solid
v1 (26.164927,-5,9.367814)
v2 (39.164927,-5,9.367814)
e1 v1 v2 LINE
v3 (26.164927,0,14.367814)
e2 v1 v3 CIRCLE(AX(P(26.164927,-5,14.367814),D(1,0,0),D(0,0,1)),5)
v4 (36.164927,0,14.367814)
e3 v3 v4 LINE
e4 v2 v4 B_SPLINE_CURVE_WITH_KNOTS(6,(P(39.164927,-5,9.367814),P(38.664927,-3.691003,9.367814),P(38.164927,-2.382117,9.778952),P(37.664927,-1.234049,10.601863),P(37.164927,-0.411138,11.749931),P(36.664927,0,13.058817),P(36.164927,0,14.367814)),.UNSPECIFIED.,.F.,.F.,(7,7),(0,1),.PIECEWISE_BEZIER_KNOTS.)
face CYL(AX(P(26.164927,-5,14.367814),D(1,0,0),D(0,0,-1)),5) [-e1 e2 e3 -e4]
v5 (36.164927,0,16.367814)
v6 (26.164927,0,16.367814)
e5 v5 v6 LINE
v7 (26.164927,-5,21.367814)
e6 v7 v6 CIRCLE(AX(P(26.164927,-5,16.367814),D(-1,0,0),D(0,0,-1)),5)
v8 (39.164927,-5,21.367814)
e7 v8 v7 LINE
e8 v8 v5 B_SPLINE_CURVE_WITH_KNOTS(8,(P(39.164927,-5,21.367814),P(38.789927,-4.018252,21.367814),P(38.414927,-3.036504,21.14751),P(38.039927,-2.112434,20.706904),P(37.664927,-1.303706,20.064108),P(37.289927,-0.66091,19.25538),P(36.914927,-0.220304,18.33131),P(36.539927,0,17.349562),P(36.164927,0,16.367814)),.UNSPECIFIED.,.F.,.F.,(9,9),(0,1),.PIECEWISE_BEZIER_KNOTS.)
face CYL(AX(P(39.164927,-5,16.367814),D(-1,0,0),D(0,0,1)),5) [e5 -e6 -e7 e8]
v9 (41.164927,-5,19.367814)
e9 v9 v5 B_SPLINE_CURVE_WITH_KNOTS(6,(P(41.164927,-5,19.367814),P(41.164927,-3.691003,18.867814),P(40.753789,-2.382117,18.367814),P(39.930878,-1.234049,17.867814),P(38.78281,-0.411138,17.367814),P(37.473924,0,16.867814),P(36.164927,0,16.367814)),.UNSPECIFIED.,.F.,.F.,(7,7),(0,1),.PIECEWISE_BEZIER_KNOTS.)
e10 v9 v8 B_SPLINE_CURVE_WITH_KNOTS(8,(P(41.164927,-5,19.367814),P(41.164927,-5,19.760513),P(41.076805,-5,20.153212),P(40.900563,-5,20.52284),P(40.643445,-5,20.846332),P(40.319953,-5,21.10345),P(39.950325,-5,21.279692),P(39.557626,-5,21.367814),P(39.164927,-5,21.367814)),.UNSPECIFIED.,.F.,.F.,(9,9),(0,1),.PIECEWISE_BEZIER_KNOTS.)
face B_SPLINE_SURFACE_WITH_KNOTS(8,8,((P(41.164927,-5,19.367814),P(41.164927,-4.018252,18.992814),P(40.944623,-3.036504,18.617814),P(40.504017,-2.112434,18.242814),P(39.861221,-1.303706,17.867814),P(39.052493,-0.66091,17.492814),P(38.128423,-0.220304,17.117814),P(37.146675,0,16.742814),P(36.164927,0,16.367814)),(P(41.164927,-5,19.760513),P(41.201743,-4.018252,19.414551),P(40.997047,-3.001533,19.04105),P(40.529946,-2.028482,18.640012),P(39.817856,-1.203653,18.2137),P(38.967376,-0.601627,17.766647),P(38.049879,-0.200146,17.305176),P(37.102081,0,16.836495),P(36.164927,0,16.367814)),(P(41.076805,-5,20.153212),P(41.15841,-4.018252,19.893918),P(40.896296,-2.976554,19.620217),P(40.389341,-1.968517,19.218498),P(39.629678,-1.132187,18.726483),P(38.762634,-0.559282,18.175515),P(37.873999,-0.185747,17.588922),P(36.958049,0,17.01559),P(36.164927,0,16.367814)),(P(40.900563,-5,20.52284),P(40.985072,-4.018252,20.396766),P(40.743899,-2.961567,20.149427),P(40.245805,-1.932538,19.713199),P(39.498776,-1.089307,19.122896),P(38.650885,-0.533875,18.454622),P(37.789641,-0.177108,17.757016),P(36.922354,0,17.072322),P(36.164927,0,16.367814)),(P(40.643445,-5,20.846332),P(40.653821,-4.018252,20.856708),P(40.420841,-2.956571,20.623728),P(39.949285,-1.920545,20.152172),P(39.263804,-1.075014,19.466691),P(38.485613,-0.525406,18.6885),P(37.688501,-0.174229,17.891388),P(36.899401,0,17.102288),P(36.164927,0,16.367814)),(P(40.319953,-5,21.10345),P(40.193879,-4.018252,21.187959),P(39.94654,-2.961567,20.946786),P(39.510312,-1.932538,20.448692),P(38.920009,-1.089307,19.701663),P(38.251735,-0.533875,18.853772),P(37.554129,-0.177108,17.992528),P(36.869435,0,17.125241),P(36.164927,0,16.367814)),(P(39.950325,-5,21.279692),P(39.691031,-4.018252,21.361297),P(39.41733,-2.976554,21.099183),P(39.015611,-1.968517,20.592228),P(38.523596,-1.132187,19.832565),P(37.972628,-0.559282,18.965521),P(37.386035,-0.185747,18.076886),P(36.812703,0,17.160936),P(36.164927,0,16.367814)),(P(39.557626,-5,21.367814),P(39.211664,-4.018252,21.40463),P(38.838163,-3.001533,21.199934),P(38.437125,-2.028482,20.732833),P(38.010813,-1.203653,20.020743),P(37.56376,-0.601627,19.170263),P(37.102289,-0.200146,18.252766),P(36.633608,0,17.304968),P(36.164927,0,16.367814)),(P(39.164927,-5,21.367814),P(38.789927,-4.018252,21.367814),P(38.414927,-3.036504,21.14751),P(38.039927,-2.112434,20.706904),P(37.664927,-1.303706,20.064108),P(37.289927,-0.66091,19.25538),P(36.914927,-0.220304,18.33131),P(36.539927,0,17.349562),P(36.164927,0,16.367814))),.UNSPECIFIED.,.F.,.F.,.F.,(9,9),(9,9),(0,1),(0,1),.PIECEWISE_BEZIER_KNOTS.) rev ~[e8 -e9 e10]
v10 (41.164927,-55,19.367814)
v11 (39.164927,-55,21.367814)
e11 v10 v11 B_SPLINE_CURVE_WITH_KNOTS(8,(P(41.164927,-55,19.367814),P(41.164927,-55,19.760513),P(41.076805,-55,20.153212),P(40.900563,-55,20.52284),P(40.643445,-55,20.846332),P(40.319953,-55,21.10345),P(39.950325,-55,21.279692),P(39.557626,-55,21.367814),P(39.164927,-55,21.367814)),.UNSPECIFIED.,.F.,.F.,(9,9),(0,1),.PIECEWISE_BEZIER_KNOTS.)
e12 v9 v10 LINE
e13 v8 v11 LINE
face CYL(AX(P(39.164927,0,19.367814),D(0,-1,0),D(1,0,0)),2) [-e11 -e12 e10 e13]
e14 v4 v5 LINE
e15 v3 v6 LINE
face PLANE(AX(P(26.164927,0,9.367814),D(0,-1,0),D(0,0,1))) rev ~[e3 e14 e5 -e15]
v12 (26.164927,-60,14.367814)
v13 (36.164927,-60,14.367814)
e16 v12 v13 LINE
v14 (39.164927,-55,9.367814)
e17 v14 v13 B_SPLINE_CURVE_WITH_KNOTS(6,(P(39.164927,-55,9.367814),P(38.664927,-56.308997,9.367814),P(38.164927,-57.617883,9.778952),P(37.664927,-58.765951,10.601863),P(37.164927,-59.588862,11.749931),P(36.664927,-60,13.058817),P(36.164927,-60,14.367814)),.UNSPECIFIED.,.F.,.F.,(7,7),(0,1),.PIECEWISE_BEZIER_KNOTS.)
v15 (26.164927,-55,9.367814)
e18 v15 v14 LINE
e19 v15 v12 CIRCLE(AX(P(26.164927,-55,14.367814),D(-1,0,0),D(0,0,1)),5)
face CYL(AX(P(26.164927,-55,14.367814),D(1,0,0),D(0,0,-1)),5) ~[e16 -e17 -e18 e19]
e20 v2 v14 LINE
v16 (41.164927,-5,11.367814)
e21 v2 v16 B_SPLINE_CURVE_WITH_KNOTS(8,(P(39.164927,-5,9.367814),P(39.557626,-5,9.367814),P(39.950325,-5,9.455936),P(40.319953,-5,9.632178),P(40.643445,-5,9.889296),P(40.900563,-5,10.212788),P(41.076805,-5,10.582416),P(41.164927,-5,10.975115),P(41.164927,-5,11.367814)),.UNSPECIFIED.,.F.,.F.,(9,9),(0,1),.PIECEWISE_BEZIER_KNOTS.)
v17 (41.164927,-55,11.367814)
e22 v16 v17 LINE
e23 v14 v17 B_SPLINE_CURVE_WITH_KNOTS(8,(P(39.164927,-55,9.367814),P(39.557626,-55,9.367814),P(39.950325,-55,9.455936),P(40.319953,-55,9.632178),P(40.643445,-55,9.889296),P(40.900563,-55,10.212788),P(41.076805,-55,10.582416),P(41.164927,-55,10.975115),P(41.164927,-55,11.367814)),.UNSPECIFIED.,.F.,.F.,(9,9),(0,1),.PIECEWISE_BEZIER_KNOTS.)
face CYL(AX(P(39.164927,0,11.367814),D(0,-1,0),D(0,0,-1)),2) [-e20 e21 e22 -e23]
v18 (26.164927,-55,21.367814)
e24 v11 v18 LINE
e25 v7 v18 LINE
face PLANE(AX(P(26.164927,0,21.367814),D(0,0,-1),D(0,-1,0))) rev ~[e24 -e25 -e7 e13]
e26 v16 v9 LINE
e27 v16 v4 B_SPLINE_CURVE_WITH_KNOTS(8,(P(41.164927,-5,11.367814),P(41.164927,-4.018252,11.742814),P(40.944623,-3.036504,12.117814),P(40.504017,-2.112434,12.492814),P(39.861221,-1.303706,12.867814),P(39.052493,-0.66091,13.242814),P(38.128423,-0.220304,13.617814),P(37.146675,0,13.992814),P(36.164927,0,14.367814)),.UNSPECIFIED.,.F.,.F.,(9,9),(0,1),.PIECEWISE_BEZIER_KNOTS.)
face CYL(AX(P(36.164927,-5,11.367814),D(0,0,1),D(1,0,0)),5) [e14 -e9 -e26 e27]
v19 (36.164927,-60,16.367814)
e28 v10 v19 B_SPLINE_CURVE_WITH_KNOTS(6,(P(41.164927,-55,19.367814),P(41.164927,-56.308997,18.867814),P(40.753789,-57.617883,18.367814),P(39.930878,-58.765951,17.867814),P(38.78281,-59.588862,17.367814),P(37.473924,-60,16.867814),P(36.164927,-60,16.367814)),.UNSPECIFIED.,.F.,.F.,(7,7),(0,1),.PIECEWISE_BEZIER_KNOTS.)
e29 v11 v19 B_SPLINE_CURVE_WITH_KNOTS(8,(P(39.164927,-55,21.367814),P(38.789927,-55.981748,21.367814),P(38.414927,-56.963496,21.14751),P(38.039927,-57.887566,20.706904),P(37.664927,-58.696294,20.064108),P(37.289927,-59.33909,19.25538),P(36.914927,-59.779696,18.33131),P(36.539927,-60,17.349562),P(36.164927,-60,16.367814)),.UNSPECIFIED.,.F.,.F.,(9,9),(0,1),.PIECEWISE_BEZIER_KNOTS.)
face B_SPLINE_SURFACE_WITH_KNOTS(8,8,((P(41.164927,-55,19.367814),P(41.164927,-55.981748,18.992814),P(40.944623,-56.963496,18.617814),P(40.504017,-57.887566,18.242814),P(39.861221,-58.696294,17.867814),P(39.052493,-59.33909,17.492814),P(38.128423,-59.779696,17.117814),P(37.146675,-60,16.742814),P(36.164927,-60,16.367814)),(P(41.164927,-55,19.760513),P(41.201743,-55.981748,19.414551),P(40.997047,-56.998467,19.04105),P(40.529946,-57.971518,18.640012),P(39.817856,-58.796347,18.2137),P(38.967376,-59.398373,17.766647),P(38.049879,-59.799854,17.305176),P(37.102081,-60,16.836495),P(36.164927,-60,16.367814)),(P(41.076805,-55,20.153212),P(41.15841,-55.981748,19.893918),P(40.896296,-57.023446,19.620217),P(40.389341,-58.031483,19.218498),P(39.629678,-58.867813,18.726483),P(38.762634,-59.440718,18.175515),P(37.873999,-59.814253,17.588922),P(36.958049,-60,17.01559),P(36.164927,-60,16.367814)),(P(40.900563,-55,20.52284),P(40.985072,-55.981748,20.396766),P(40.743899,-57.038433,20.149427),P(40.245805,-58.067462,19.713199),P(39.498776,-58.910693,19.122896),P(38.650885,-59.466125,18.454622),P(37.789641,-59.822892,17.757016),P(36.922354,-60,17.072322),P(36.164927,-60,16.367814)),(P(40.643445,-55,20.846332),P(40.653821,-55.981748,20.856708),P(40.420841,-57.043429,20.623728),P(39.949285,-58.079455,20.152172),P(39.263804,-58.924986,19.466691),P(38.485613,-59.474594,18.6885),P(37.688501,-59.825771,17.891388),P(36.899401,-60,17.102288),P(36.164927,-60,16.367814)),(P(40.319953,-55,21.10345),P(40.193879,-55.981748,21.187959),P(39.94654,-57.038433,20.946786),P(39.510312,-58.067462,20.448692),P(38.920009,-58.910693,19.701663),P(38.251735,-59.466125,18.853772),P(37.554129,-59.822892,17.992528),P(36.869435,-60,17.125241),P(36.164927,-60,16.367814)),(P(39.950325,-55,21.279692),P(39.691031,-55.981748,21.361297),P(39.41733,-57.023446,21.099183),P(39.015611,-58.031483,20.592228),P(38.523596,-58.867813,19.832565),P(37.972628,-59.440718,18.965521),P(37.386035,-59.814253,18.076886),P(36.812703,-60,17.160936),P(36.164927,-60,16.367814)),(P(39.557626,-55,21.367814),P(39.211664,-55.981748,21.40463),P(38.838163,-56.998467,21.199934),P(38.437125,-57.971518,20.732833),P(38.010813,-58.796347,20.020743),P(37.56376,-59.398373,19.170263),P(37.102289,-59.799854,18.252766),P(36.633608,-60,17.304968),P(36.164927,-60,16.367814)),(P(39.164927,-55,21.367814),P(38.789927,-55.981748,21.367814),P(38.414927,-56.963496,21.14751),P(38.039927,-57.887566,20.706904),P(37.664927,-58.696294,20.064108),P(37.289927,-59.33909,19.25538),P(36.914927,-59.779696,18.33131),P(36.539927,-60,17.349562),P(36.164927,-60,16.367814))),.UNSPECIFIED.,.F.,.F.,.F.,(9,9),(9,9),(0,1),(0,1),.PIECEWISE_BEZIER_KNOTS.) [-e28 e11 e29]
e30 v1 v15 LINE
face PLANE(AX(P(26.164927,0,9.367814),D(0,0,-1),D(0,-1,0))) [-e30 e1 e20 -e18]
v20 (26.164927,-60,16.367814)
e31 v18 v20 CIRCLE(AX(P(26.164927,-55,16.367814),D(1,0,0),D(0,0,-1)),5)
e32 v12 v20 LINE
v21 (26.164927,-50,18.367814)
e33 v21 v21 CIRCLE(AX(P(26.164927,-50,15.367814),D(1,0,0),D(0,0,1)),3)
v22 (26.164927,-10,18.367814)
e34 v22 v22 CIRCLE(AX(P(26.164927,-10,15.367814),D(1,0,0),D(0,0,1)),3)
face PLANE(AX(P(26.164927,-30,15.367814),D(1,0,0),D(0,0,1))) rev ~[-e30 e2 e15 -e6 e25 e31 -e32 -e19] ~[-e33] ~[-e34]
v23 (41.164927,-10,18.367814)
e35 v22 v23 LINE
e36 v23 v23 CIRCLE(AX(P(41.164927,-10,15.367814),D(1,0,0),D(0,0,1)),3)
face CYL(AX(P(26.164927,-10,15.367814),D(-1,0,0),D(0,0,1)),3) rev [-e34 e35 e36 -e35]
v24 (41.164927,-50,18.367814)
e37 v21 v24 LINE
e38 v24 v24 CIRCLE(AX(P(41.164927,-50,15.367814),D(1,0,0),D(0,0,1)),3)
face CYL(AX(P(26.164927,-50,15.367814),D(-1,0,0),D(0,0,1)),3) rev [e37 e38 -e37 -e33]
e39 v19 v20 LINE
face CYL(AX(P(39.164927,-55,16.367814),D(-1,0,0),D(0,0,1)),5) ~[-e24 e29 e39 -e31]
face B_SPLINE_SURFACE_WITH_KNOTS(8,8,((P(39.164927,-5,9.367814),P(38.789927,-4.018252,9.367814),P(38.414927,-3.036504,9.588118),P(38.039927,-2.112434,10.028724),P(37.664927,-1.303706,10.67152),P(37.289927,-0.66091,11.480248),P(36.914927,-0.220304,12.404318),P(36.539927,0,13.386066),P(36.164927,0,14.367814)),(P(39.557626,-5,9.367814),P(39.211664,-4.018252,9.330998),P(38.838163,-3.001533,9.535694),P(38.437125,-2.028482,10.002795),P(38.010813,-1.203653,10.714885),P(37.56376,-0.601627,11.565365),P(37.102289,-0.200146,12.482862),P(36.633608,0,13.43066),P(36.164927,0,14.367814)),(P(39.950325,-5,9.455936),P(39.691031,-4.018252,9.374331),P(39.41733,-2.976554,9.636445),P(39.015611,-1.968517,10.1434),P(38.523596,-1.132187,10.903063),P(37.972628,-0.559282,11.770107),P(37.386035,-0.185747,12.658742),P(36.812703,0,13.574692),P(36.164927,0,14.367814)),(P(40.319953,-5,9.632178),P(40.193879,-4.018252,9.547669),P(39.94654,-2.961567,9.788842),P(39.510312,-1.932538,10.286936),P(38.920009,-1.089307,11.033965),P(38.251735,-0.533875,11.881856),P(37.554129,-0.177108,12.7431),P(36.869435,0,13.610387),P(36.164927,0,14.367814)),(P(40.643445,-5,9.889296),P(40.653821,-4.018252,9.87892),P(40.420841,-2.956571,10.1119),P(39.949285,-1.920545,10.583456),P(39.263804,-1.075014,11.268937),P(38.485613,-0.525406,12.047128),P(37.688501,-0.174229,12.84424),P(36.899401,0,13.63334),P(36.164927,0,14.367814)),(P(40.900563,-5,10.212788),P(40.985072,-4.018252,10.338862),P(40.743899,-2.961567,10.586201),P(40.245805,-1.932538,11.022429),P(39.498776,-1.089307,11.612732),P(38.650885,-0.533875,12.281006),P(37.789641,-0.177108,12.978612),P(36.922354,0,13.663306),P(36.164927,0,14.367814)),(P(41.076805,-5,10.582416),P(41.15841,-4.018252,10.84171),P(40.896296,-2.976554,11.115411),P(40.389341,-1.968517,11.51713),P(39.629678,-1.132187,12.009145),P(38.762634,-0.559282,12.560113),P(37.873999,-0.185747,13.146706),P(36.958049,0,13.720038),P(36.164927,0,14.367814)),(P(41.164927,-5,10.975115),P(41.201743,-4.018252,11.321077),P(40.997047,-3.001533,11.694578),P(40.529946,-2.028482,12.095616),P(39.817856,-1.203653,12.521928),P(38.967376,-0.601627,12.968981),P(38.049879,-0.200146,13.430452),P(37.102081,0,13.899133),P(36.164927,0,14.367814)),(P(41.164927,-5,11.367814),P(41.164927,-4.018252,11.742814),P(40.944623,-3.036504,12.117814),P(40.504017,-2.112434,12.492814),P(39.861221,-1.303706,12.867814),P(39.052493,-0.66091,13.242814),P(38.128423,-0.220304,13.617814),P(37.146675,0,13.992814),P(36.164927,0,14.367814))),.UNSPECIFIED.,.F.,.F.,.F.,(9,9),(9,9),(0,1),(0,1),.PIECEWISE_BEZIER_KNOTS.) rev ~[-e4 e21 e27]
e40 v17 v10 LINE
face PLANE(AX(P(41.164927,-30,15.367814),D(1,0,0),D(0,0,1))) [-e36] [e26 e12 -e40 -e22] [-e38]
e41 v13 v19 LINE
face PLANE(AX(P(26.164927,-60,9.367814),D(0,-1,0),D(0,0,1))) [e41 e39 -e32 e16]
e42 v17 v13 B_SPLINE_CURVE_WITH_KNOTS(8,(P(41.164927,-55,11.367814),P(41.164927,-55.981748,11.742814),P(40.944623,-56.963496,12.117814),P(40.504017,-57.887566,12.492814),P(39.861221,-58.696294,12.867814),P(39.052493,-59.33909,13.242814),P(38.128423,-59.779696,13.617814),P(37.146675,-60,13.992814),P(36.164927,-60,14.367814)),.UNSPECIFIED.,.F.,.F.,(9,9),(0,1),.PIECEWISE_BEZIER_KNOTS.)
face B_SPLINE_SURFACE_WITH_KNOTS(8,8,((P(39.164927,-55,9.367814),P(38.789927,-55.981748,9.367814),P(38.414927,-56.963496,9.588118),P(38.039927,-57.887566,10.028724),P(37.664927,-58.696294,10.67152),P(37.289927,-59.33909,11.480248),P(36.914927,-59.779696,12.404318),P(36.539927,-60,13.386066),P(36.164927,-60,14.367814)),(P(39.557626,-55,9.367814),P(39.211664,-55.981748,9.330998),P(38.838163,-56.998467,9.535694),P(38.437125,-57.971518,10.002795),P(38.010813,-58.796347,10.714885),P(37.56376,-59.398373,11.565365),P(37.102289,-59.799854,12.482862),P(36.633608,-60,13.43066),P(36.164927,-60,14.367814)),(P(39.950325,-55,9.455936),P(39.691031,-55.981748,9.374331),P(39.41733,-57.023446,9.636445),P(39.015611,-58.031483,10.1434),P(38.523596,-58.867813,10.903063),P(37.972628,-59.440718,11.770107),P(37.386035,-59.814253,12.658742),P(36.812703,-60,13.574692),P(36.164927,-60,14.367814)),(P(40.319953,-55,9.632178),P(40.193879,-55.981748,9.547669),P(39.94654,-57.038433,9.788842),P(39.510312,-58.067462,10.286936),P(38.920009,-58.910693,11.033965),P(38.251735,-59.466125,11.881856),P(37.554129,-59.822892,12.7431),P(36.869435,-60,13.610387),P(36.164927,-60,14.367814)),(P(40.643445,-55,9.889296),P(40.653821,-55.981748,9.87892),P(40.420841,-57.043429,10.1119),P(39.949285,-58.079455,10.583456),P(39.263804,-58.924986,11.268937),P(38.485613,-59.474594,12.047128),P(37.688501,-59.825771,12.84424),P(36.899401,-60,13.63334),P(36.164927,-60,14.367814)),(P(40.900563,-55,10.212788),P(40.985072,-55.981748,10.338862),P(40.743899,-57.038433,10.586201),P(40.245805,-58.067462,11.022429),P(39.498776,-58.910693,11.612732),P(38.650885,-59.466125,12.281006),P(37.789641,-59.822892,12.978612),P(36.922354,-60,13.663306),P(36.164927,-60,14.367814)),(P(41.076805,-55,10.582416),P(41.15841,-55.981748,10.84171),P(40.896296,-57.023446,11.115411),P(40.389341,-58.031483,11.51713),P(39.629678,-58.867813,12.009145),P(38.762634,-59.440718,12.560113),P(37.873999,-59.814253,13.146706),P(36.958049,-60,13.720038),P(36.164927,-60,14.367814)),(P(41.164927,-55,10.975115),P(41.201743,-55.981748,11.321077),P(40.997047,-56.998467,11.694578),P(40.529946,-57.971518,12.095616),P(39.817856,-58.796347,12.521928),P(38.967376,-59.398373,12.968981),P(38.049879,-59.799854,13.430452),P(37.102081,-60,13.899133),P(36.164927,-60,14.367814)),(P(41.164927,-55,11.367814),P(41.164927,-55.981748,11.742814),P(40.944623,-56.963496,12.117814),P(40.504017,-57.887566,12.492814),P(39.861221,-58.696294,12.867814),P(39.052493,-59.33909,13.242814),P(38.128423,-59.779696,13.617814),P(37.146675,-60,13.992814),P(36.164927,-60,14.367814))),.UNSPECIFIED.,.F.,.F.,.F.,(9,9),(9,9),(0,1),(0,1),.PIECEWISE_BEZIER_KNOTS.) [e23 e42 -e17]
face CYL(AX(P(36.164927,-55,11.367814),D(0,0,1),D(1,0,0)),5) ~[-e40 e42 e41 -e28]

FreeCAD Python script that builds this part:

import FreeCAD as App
import Part
import Sketcher

V = App.Vector


def edges_at(feature, points):
    """Names of the edges that pass closest to the given points."""
    edges = feature.Shape.Edges
    near = lambda p: min(range(len(edges)), key=lambda i: edges[i].distToShape(Part.Vertex(*p))[0])
    return sorted({f"Edge{near(p) + 1}" for p in points})

doc = App.newDocument("Part")
body = doc.addObject("PartDesign::Body", "Body")

sketch1 = body.newObject("Sketcher::SketchObject", "Sketch")
sketch1.AttachmentSupport = (doc.getObject("YZ_Plane"), [""])
sketch1.MapMode = "FlatFace"
sketch1.AttachmentOffset = App.Placement(V(0, 0, 26.164927), App.Rotation())
sketch1.addGeometry(Part.LineSegment(V(-60, 9.4, 0), V(0, 9.4, 0)), False)
sketch1.addGeometry(Part.LineSegment(V(0, 9.4, 0), V(0, 21.4, 0)), False)
sketch1.addGeometry(Part.LineSegment(V(0, 21.4, 0), V(-60, 21.4, 0)), False)
sketch1.addGeometry(Part.LineSegment(V(-60, 21.4, 0), V(-60, 9.4, 0)), False)
sketch1.addGeometry(Part.Circle(V(-10, 15.4, 0), V(0, 0, 1), 3), False)
sketch1.addGeometry(Part.Circle(V(-50, 15.4, 0), V(0, 0, 1), 3), False)
sketch1.addConstraint(Sketcher.Constraint("Coincident", 0, 2, 1, 1))
sketch1.addConstraint(Sketcher.Constraint("Coincident", 1, 2, 2, 1))
sketch1.addConstraint(Sketcher.Constraint("Coincident", 2, 2, 3, 1))
sketch1.addConstraint(Sketcher.Constraint("Coincident", 3, 2, 0, 1))
sketch1.addConstraint(Sketcher.Constraint("Horizontal", 0))
sketch1.addConstraint(Sketcher.Constraint("Vertical", 1))
sketch1.addConstraint(Sketcher.Constraint("Horizontal", 2))
sketch1.addConstraint(Sketcher.Constraint("Vertical", 3))
sketch1.addConstraint(Sketcher.Constraint("Equal", 4, 5))
sketch1.addConstraint(Sketcher.Constraint("PointOnObject", 0, 2, -2))
sketch1.addConstraint(Sketcher.Constraint("Horizontal", 4, 3, 5, 3))
sketch1.addConstraint(Sketcher.Constraint("Diameter", 4, 6.0))
sketch1.addConstraint(Sketcher.Constraint("DistanceX", 0, 1, 0, 2, 60.0))
sketch1.addConstraint(Sketcher.Constraint("DistanceY", 1, 1, 1, 2, 12.0))
sketch1.addConstraint(Sketcher.Constraint("DistanceX", 4, 3, -1, 1, 10.0))
sketch1.addConstraint(Sketcher.Constraint("DistanceX", 5, 3, -1, 1, 50.0))
sketch1.addConstraint(Sketcher.Constraint("DistanceY", 0, 2, 4, 3, 6.0))
sketch1.addConstraint(Sketcher.Constraint("DistanceY", -1, 1, 4, 3, 15.367814))
pad1 = body.newObject("PartDesign::Pad", "Pad")
pad1.Profile = sketch1
pad1.Length = 15
doc.recompute()

fillet = body.newObject("PartDesign::Fillet", "Fillet")
fillet.Base = (pad1, edges_at(pad1, [(41.165, -30, 9.368)]))
fillet.Radius = 2
doc.recompute()

fillet2 = body.newObject("PartDesign::Fillet", "Fillet001")
fillet2.Base = (fillet, edges_at(fillet, [(41.165, -30, 21.368)]))
fillet2.Radius = 2
doc.recompute()

fillet3 = body.newObject("PartDesign::Fillet", "Fillet002")
fillet3.Base = (fillet2, edges_at(fillet2, [(41.165, -60, 15.368)]))
fillet3.Radius = 5
doc.recompute()

fillet4 = body.newObject("PartDesign::Fillet", "Fillet003")
fillet4.Base = (fillet3, edges_at(fillet3, [(41.165, 0, 15.368)]))
fillet4.Radius = 5

doc.recompute()
